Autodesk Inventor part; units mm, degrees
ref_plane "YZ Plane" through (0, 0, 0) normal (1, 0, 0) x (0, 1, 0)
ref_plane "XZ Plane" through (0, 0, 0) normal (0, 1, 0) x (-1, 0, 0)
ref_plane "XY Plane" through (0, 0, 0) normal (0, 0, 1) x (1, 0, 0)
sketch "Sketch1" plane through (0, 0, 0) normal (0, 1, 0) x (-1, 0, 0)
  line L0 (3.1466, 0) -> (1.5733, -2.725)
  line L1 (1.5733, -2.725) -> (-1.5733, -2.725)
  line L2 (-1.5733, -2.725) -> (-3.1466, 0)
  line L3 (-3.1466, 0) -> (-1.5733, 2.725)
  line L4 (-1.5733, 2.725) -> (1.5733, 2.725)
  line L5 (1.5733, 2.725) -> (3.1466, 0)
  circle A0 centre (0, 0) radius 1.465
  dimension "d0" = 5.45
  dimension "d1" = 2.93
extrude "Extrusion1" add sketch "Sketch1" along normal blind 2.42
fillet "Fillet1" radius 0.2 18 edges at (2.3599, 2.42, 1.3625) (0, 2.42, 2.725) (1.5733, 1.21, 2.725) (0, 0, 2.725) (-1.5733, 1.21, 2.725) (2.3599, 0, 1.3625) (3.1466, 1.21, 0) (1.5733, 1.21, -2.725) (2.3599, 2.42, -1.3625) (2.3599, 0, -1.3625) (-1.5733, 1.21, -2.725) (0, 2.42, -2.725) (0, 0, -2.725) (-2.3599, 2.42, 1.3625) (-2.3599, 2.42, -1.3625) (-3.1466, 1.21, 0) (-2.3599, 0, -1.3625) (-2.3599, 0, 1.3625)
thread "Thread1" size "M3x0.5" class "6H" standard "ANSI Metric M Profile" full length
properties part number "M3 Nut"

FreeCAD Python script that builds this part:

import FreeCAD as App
import Part
import Sketcher

V = App.Vector
Q = App.Units.Quantity


def edges_at(feature, points):
    """Names of the edges that pass closest to the given points."""
    edges = feature.Shape.Edges
    near = lambda p: min(range(len(edges)), key=lambda i: edges[i].distToShape(Part.Vertex(*p))[0])
    return sorted({f"Edge{near(p) + 1}" for p in points})

doc = App.newDocument("Part")
body = doc.addObject("PartDesign::Body", "Body")

sketch1 = body.newObject("Sketcher::SketchObject", "Sketch")
sketch1.AttachmentSupport = (doc.getObject("XZ_Plane"), [""])
sketch1.MapMode = "FlatFace"
sketch1.addGeometry([
    Part.LineSegment(V(-1.6, -2.7, 0), V(-3.1, 0, 0)),
    Part.LineSegment(V(-3.1, 0, 0), V(-1.6, 2.7, 0)),
    Part.LineSegment(V(-1.6, 2.7, 0), V(1.6, 2.7, 0)),
    Part.LineSegment(V(1.6, 2.7, 0), V(3.1, 0, 0)),
    Part.LineSegment(V(3.1, 0, 0), V(1.6, -2.7, 0)),
    Part.LineSegment(V(1.6, -2.7, 0), V(-1.6, -2.7, 0)),
    Part.Circle(V(0, 0, 0), V(0, 0, 1), 1.5),
], False)
sketch1.addConstraint([
    Sketcher.Constraint("Coincident", 0, 2, 1, 1),
    Sketcher.Constraint("Coincident", 1, 2, 2, 1),
    Sketcher.Constraint("Coincident", 2, 2, 3, 1),
    Sketcher.Constraint("Coincident", 3, 2, 4, 1),
    Sketcher.Constraint("Coincident", 4, 2, 5, 1),
    Sketcher.Constraint("Coincident", 5, 2, 0, 1),
    Sketcher.Constraint("Horizontal", 2),
    Sketcher.Constraint("Horizontal", 5),
    Sketcher.Constraint("Coincident", 6, 3, -1, 1),
    Sketcher.Constraint("Symmetric", 0, 2, 3, 2, -1, 1),
    Sketcher.Constraint("Symmetric", 1, 2, 4, 2, -1, 1),
    Sketcher.Constraint("PointOnObject", 0, 2, -1),
    Sketcher.Constraint("Parallel", 0, 3),
    Sketcher.Constraint("Vertical", 2, 2, 4, 2),
    Sketcher.Constraint("Diameter", 6, Q("2.93 mm")),
    Sketcher.Constraint("Angle", 0, Q("120.0003 deg")),
    Sketcher.Constraint("DistanceY", 4, 2, 2, 2, Q("5.45 mm")),
    Sketcher.Constraint("DistanceX", 0, 2, 2, 2, Q("4.72 mm")),
])
pad1 = body.newObject("PartDesign::Pad", "Pad")
pad1.Profile = sketch1
pad1.Length = 2.42
pad1.Reversed = True
doc.recompute()

fillet = body.newObject("PartDesign::Fillet", "Fillet")
fillet.Base = (pad1, edges_at(pad1, [
    (2.36, 2.42, 1.363),
    (0, 2.42, 2.725),
    (1.573, 1.21, 2.725),
    (0, 0, 2.725),
    (-1.573, 1.21, 2.725),
    (2.36, 0, 1.363),
    (3.147, 1.21, 0),
    (1.573, 1.21, -2.725),
    (2.36, 2.42, -1.363),
    (2.36, 0, -1.363),
    (-1.573, 1.21, -2.725),
    (0, 2.42, -2.725),
    (0, 0, -2.725),
    (-2.36, 2.42, 1.363),
    (-2.36, 2.42, -1.363),
    (-3.147, 1.21, 0),
    (-2.36, 0, -1.363),
    (-2.36, 0, 1.363),
]))
fillet.Radius = 0.2

doc.recompute()
